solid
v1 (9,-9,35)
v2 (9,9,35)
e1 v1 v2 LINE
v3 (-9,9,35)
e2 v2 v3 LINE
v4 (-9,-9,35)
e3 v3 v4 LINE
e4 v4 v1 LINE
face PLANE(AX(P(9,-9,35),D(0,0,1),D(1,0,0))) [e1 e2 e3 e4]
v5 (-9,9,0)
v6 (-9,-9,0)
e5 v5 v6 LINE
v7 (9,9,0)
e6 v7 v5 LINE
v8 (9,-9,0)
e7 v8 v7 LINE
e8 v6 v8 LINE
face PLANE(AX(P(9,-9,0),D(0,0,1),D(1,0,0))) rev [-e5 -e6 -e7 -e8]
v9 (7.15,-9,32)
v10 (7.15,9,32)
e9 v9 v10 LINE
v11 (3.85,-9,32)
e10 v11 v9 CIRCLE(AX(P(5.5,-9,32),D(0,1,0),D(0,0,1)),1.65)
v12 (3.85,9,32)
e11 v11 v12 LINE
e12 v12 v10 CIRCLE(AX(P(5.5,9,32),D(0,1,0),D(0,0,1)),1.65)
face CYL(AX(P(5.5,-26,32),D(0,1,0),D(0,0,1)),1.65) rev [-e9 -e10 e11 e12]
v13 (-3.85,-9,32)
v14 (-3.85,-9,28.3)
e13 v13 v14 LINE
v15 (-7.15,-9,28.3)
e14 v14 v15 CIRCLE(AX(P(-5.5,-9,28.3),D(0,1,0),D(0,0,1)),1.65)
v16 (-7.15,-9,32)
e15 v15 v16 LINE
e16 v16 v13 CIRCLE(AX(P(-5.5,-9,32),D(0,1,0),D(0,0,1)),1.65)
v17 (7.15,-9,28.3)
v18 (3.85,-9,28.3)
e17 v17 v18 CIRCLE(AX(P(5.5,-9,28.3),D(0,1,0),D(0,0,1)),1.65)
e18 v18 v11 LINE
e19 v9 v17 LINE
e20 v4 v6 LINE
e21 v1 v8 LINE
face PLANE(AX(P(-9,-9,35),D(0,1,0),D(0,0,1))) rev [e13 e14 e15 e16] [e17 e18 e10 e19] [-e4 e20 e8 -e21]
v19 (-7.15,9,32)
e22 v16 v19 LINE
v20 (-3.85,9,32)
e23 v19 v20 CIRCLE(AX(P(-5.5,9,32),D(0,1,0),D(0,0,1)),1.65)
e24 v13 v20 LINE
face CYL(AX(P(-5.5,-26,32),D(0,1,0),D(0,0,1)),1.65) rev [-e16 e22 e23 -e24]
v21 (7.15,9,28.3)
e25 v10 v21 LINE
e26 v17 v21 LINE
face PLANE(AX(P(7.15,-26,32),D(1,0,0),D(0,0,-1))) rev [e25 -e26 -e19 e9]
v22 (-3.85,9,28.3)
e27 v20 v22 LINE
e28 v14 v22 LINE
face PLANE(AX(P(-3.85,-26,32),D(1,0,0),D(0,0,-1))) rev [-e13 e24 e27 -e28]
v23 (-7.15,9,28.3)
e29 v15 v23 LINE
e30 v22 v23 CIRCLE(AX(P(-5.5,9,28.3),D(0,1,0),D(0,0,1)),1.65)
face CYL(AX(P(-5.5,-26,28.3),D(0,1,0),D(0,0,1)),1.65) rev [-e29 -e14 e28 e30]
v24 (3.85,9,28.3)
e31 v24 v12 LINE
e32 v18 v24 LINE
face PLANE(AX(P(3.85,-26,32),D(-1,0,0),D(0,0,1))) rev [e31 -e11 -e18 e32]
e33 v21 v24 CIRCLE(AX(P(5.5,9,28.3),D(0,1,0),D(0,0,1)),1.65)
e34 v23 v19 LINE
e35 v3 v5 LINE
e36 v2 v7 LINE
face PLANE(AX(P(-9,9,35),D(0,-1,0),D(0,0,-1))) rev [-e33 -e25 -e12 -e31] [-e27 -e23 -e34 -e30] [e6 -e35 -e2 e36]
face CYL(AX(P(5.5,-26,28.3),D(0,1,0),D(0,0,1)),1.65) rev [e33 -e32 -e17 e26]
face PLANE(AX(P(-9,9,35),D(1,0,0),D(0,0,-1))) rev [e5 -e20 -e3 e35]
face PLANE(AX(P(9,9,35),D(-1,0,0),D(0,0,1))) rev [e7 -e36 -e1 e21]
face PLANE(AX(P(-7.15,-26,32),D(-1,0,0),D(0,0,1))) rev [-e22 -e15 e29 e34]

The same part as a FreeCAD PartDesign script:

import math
import FreeCAD as App
import Part
import Sketcher
from FreeCAD import Vector


def add_polygon(sketch, points):
    """Adds a closed chain of lines whose ends are joined by coincident constraints."""
    first, n = sketch.GeometryCount, len(points)
    for a, b in zip(points, points[1:] + points[:1]):
        sketch.addGeometry(Part.LineSegment(App.Vector(*a, 0), App.Vector(*b, 0)), False)
    for i in range(n):
        sketch.addConstraint(Sketcher.Constraint("Coincident", first + i, 2, first + (i + 1) % n, 1))

doc = App.newDocument("Part")
body = doc.addObject("PartDesign::Body", "Body")

# Sketch on XY plane
sketch1 = body.newObject("Sketcher::SketchObject", "Sketch")
sketch1.AttachmentSupport = (doc.getObject("XY_Plane"), [""])
sketch1.MapMode = "FlatFace"
add_polygon(sketch1, [(-9, 9), (-9, -9), (9, -9), (9, 9)])  # lines 0-3
sketch1.addConstraint(Sketcher.Constraint("Vertical", 0))
sketch1.addConstraint(Sketcher.Constraint("Horizontal", 1))
sketch1.addConstraint(Sketcher.Constraint("Vertical", 2))
sketch1.addConstraint(Sketcher.Constraint("Horizontal", 3))
sketch1.addConstraint(Sketcher.Constraint("Symmetric", 0, 2, 2, 2, -1, 1))
sketch1.addConstraint(Sketcher.Constraint("Equal", 3, 0))
sketch1.addConstraint(Sketcher.Constraint("DistanceX", 1, 1, 1, 2, 18.0))
pad1 = body.newObject("PartDesign::Pad", "Pad")
pad1.Profile = sketch1
pad1.Length = 35

# Sketch on XZ plane
sketch2 = body.newObject("Sketcher::SketchObject", "Sketch001")
sketch2.AttachmentSupport = (doc.getObject("XZ_Plane"), [""])
sketch2.MapMode = "FlatFace"
sketch2.AttachmentOffset = App.Placement(Vector(0, 0, -9), App.Rotation())
sketch2.addGeometry(Part.LineSegment(Vector(3.9, 28.3, 0), Vector(3.9, 32, 0)), False)
sketch2.addGeometry(Part.ArcOfCircle(Part.Circle(Vector(5.5, 32, 0), Vector(0, 0, 1), 1.6), math.radians(0), math.radians(180)), False)
sketch2.addGeometry(Part.LineSegment(Vector(7.2, 32, 0), Vector(7.2, 28.3, 0)), False)
sketch2.addGeometry(Part.ArcOfCircle(Part.Circle(Vector(5.5, 28.3, 0), Vector(0, 0, 1), 1.6), math.radians(180), math.radians(360)), False)
sketch2.addGeometry(Part.LineSegment(Vector(-7.2, 28.3, 0), Vector(-7.2, 32, 0)), False)
sketch2.addGeometry(Part.ArcOfCircle(Part.Circle(Vector(-5.5, 32, 0), Vector(0, 0, 1), 1.6), math.radians(0), math.radians(180)), False)
sketch2.addGeometry(Part.LineSegment(Vector(-3.9, 32, 0), Vector(-3.9, 28.3, 0)), False)
sketch2.addGeometry(Part.ArcOfCircle(Part.Circle(Vector(-5.5, 28.3, 0), Vector(0, 0, 1), 1.6), math.radians(180), math.radians(360)), False)
sketch2.addConstraint(Sketcher.Constraint("Tangent", 0, 2, 1, 2))
sketch2.addConstraint(Sketcher.Constraint("Tangent", 1, 1, 2, 1))
sketch2.addConstraint(Sketcher.Constraint("Tangent", 2, 2, 3, 2))
sketch2.addConstraint(Sketcher.Constraint("Tangent", 3, 1, 0, 1))
sketch2.addConstraint(Sketcher.Constraint("Tangent", 4, 2, 5, 2))
sketch2.addConstraint(Sketcher.Constraint("Tangent", 5, 1, 6, 1))
sketch2.addConstraint(Sketcher.Constraint("Tangent", 6, 2, 7, 2))
sketch2.addConstraint(Sketcher.Constraint("Tangent", 7, 1, 4, 1))
sketch2.addConstraint(Sketcher.Constraint("Vertical", 0))
sketch2.addConstraint(Sketcher.Constraint("Vertical", 2))
sketch2.addConstraint(Sketcher.Constraint("Vertical", 4))
sketch2.addConstraint(Sketcher.Constraint("Vertical", 6))
sketch2.addConstraint(Sketcher.Constraint("Equal", 3, 5))
sketch2.addConstraint(Sketcher.Constraint("Symmetric", 1, 3, 5, 3, -2))
sketch2.addConstraint(Sketcher.Constraint("Horizontal", 3, 3, 7, 3))
sketch2.addConstraint(Sketcher.Constraint("Radius", 1, 1.65))
sketch2.addConstraint(Sketcher.Constraint("DistanceY", 0, 1, 0, 2, 3.7))
sketch2.addConstraint(Sketcher.Constraint("DistanceY", -1, 1, 1, 3, 32.0))
sketch2.addConstraint(Sketcher.Constraint("DistanceX", 5, 3, 1, 3, 11.0))
pocket1 = body.newObject("PartDesign::Pocket", "Pocket")
pocket1.Profile = sketch2
pocket1.Length = 35
pocket1.Reversed = True

doc.recompute()
